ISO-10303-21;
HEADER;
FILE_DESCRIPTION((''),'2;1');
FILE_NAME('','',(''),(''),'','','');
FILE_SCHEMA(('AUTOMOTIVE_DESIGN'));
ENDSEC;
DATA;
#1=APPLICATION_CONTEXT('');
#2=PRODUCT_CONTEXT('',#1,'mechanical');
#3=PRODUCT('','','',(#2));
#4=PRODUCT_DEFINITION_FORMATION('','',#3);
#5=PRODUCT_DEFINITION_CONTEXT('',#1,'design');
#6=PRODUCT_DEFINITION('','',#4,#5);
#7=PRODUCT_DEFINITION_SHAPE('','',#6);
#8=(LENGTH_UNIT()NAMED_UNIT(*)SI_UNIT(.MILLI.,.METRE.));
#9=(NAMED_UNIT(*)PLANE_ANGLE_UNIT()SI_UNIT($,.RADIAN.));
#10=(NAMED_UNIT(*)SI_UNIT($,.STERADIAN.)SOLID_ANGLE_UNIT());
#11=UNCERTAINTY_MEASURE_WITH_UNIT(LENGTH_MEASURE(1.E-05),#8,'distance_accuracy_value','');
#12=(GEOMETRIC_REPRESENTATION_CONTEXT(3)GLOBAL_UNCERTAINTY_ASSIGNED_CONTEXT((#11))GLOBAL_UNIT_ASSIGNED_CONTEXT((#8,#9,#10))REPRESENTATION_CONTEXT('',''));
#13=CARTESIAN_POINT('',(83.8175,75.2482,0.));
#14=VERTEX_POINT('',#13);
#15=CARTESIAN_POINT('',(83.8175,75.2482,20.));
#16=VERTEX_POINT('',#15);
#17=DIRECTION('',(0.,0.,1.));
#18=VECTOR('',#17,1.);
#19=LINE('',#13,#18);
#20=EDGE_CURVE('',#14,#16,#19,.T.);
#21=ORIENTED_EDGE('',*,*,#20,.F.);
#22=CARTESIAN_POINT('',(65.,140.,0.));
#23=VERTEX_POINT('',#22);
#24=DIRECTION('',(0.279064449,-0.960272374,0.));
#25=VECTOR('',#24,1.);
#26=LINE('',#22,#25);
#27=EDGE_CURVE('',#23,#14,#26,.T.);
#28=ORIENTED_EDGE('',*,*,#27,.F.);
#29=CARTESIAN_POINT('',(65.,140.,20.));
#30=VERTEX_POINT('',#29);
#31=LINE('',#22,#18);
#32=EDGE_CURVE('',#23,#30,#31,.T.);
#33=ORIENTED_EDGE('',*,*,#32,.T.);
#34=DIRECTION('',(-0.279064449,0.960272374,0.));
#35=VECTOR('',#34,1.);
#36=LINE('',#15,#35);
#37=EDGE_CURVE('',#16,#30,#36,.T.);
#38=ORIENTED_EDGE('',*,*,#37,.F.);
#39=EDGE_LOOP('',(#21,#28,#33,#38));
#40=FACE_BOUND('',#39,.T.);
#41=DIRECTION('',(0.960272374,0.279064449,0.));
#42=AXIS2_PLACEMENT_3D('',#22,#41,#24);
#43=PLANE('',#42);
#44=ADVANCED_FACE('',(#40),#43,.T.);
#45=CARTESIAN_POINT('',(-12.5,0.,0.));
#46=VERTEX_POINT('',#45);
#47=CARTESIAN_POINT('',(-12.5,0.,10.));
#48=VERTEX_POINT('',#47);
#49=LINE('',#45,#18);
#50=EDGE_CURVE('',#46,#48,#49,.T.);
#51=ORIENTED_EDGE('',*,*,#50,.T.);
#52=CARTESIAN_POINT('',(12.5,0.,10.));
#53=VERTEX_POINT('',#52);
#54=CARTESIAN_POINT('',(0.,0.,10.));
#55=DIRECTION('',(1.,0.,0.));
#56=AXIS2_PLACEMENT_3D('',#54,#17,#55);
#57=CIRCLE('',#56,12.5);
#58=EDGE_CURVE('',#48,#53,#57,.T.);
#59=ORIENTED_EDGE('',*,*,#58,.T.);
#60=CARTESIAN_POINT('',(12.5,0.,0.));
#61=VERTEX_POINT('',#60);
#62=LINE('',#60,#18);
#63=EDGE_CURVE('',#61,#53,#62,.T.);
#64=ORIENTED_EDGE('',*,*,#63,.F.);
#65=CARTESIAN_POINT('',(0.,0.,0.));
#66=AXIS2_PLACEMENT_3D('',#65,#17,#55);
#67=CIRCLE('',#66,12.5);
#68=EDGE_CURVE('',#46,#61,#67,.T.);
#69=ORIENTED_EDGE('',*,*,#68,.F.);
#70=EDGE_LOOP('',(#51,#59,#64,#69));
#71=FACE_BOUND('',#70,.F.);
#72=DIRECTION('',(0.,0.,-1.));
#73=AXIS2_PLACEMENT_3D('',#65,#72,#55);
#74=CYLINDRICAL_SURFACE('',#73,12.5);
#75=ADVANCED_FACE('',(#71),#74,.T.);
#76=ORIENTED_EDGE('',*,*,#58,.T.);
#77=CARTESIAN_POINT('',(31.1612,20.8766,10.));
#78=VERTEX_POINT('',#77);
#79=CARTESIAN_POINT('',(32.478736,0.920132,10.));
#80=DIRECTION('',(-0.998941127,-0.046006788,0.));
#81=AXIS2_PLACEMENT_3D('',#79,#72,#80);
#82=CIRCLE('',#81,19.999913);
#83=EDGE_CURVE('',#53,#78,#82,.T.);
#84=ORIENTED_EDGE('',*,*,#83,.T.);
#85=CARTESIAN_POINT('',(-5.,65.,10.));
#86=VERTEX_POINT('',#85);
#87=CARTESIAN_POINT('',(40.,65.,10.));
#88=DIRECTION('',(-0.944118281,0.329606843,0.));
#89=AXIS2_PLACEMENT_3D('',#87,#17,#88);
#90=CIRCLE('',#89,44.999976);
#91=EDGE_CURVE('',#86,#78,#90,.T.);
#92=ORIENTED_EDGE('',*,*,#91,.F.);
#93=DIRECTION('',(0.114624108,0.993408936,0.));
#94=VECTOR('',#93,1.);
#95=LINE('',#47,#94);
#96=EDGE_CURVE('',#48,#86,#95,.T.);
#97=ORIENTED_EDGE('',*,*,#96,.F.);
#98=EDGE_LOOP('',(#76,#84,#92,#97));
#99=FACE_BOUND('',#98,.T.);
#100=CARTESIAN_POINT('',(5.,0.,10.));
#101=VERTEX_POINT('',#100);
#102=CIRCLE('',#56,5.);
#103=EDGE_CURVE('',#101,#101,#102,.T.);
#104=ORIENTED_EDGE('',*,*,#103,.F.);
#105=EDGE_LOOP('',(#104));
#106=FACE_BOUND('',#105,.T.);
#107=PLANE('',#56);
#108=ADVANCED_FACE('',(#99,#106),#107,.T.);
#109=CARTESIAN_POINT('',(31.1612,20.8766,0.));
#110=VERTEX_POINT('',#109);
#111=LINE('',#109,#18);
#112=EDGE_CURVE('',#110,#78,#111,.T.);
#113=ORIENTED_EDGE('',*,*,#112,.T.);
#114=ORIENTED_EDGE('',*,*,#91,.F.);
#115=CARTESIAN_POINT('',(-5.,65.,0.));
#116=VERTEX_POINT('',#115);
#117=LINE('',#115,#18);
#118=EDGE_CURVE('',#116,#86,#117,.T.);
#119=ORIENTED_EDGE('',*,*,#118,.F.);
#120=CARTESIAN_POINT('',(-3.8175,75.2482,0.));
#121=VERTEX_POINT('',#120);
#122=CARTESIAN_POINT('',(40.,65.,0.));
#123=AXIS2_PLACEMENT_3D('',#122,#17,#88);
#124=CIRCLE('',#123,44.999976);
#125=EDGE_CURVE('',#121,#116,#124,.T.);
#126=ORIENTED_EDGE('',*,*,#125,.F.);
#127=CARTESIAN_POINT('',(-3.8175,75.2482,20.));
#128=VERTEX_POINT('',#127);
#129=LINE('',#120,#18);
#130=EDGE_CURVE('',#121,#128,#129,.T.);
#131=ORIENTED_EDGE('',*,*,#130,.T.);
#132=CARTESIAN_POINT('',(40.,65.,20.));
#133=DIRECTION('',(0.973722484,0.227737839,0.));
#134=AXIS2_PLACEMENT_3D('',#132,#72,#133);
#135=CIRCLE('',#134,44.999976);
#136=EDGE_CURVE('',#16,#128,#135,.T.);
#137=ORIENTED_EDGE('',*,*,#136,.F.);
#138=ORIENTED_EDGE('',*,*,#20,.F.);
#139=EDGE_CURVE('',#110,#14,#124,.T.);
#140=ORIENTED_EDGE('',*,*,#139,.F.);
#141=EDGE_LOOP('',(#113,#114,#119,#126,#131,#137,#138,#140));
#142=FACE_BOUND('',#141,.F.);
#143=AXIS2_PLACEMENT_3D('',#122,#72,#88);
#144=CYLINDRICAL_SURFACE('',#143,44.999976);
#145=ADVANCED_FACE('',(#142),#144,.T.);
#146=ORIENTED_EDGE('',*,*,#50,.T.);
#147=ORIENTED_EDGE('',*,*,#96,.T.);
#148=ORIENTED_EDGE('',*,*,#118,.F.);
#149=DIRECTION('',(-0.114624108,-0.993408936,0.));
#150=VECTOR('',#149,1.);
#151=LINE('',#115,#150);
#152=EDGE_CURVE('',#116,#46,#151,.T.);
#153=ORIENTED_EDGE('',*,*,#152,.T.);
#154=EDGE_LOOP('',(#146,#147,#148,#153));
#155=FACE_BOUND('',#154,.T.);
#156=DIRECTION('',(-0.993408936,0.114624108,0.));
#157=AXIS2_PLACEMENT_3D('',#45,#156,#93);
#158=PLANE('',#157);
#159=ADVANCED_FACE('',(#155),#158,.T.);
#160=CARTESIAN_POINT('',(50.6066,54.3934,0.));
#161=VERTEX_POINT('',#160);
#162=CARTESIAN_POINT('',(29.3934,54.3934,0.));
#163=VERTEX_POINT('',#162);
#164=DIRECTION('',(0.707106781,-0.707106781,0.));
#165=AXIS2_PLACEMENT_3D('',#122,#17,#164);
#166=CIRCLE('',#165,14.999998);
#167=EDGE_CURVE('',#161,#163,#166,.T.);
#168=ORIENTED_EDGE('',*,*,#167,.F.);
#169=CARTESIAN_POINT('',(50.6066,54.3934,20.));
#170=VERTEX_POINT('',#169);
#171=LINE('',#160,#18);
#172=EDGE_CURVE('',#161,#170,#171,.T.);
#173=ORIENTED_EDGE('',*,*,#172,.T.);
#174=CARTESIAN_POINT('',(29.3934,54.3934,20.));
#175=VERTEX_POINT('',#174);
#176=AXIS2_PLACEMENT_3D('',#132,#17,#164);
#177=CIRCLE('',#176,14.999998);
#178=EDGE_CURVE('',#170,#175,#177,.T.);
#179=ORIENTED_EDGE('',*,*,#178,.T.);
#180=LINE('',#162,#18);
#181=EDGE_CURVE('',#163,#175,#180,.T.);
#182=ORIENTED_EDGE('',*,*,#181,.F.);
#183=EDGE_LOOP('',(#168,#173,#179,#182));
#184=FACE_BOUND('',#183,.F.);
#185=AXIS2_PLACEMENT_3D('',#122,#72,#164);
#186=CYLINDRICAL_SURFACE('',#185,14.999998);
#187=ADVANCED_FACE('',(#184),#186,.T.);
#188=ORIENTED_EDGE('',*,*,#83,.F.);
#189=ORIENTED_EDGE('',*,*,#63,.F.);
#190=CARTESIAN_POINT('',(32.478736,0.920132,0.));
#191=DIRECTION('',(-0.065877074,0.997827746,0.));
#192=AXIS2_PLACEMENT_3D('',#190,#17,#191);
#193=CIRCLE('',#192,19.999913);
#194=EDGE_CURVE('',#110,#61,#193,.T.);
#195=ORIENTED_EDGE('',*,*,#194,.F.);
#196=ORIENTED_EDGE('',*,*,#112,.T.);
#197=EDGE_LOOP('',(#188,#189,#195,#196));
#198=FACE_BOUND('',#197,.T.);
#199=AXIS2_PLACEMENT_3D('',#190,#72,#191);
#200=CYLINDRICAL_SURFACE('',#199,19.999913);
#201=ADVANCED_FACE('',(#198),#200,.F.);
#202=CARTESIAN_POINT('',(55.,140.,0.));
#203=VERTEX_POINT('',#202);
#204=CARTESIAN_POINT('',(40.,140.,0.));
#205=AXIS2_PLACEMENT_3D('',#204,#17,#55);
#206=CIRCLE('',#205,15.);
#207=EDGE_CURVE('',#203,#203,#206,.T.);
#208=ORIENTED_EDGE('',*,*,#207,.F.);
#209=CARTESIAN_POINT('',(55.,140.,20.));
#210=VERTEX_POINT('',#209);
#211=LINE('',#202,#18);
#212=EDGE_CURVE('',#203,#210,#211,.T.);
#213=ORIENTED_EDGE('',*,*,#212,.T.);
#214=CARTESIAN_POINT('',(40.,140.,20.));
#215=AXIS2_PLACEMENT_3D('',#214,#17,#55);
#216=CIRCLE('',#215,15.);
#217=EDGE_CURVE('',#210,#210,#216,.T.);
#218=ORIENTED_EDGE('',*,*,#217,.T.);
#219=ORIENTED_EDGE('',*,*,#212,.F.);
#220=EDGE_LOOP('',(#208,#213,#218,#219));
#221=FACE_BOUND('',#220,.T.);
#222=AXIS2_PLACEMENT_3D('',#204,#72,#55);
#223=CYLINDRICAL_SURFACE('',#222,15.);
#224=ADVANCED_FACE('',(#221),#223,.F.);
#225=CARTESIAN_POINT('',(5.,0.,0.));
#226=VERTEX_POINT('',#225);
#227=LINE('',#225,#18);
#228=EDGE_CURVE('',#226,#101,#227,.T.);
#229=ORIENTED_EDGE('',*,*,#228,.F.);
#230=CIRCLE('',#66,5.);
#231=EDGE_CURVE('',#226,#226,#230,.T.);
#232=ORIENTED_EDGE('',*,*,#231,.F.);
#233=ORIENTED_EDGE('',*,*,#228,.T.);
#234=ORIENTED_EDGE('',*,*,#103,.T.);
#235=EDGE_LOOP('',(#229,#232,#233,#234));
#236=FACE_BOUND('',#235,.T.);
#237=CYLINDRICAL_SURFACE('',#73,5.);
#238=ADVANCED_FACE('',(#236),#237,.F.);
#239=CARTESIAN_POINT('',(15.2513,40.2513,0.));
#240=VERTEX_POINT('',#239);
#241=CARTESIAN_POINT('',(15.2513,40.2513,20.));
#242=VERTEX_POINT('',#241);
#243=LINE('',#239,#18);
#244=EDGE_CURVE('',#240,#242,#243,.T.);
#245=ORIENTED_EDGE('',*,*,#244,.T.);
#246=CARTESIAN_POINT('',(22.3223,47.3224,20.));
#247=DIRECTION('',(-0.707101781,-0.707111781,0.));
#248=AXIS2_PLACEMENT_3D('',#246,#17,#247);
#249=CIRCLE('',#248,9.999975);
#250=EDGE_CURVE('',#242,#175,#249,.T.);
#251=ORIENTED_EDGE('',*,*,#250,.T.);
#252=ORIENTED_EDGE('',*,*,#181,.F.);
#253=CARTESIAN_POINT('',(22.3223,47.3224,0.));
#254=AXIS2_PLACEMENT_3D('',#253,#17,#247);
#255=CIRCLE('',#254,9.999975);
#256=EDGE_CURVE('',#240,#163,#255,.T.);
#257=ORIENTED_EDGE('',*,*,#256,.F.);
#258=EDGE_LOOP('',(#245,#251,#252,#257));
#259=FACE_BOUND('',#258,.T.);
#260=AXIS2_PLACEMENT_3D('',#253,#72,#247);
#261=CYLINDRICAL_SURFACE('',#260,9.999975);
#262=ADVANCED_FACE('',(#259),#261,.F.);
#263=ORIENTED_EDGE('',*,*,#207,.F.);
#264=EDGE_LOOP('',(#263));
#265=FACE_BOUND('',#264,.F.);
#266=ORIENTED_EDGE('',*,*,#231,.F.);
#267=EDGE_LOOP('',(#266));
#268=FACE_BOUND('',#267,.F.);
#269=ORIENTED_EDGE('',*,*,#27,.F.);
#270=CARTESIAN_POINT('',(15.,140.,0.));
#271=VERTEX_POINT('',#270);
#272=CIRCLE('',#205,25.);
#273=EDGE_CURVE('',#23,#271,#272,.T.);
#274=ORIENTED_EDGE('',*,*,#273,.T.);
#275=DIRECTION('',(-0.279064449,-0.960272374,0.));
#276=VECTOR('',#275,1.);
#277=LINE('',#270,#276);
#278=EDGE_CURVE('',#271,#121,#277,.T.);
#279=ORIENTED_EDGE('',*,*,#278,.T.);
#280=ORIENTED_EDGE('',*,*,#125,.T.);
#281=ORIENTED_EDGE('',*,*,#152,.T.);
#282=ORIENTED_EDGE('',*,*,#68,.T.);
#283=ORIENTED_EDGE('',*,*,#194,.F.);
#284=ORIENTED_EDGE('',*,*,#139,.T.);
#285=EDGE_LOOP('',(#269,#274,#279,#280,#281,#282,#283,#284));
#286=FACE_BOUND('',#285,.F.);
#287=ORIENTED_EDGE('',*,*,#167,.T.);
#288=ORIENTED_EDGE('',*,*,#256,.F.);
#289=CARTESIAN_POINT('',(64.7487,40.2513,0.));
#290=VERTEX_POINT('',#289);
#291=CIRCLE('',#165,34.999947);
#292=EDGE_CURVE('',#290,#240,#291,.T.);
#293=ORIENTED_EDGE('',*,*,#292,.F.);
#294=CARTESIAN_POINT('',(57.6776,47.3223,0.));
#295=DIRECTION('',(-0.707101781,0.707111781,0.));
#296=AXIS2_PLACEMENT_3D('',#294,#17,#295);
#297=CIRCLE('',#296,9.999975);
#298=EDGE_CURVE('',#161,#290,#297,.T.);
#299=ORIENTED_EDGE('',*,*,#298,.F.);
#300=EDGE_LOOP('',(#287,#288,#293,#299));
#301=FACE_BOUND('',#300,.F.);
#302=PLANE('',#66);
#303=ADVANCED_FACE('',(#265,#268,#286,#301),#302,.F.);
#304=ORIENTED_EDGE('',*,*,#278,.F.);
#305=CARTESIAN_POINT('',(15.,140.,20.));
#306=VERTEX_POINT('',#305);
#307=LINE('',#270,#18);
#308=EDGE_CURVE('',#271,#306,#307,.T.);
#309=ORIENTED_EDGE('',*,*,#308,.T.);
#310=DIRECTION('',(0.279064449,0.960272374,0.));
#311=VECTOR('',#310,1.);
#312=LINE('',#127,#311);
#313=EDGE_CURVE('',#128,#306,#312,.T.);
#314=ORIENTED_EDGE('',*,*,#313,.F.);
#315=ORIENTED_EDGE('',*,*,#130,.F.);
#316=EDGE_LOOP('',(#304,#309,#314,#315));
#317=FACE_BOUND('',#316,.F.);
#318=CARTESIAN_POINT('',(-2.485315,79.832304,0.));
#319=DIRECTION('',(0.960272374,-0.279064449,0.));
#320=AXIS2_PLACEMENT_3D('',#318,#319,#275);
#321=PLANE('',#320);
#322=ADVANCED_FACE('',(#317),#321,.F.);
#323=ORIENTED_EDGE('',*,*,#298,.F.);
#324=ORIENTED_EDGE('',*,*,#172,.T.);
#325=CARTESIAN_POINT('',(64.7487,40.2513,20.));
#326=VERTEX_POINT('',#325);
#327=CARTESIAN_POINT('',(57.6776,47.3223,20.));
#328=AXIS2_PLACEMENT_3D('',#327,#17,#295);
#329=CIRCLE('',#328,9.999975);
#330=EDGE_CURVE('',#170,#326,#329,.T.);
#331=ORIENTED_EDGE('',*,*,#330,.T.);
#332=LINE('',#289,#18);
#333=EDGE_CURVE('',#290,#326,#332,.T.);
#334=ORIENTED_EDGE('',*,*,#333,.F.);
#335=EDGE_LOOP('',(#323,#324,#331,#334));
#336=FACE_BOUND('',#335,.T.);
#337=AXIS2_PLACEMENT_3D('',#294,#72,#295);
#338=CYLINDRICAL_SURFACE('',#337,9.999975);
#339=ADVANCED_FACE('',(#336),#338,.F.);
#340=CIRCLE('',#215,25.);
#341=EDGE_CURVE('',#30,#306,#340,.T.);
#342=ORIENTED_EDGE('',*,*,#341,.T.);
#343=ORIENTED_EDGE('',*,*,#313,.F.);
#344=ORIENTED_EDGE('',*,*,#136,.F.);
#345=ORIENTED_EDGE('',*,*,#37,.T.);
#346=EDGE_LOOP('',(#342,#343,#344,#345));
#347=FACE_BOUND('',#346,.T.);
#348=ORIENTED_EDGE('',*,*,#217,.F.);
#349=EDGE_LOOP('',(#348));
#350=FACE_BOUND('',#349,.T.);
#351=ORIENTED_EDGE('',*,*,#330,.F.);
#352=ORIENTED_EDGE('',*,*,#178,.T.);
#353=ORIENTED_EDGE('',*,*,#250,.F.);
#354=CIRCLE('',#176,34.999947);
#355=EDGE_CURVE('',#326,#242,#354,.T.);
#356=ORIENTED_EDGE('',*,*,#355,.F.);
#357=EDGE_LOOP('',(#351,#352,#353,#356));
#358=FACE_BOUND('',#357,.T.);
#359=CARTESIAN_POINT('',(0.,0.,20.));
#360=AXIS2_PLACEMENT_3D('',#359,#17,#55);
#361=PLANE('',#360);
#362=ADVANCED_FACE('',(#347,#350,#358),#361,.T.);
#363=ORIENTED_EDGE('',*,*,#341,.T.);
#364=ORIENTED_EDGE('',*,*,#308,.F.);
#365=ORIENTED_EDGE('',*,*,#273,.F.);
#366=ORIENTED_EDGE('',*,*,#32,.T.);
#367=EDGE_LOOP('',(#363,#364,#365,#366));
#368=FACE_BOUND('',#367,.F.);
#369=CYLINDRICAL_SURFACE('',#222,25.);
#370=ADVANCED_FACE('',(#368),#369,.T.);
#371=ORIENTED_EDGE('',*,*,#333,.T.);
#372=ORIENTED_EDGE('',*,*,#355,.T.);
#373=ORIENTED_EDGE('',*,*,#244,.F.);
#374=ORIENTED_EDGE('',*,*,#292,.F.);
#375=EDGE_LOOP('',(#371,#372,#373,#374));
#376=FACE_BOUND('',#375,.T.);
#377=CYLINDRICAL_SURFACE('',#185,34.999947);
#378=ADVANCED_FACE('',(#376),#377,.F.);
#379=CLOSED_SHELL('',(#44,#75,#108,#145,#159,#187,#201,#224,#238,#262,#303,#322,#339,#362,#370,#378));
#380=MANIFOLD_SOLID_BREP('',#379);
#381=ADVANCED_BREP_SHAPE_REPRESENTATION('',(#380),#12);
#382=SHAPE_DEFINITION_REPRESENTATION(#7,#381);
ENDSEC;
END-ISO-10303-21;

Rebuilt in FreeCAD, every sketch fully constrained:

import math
import FreeCAD as App
import Part
import Sketcher

doc = App.newDocument("Part")
body = doc.addObject("PartDesign::Body", "Body")

sketch1 = body.newObject("Sketcher::SketchObject", "Sketch")
sketch1.AttachmentSupport = (doc.getObject("XY_Plane"), [""])
sketch1.MapMode = "FlatFace"
sketch1.addGeometry(Part.ArcOfCircle(Part.Circle(App.Vector(0, 0, 0), App.Vector(0, 0, 1), 12), math.radians(180), math.radians(360)), False)
sketch1.addGeometry(Part.ArcOfCircle(Part.Circle(App.Vector(32, 1, 0), App.Vector(0, 0, 1), 20), math.radians(94), math.radians(183)), False)
sketch1.addGeometry(Part.ArcOfCircle(Part.Circle(App.Vector(40, 65, 0), App.Vector(0, 0, 1), 45), math.radians(180), math.radians(259)), False)
sketch1.addGeometry(Part.LineSegment(App.Vector(-5, 65, 0), App.Vector(-12, 0, 0)), False)
sketch1.addGeometry(Part.Circle(App.Vector(0, 0, 0), App.Vector(0, 0, 1), 5), False)
sketch1.addConstraint(Sketcher.Constraint("Coincident", 0, 2, 1, 2))
sketch1.addConstraint(Sketcher.Constraint("Coincident", 1, 1, 2, 2))
sketch1.addConstraint(Sketcher.Constraint("Coincident", 2, 1, 3, 1))
sketch1.addConstraint(Sketcher.Constraint("Coincident", 3, 2, 0, 1))
sketch1.addConstraint(Sketcher.Constraint("Coincident", 0, 3, -1, 1))
sketch1.addConstraint(Sketcher.Constraint("Coincident", 4, 3, -1, 1))
sketch1.addConstraint(Sketcher.Constraint("PointOnObject", 0, 2, -1))
sketch1.addConstraint(Sketcher.Constraint("PointOnObject", 3, 2, -1))
sketch1.addConstraint(Sketcher.Constraint("Diameter", 4, 10.0))
sketch1.addConstraint(Sketcher.Constraint("Radius", 1, 20.0))
sketch1.addConstraint(Sketcher.Constraint("Radius", 2, 45.0))
sketch1.addConstraint(Sketcher.Constraint("Radius", 0, 12.5))
sketch1.addConstraint(Sketcher.Constraint("DistanceY", -1, 1, 2, 3, 65.0))
sketch1.addConstraint(Sketcher.Constraint("DistanceY", -1, 1, 2, 1, 65.0))
sketch1.addConstraint(Sketcher.Constraint("DistanceY", 1, 3, 2, 3, 64.08))
sketch1.addConstraint(Sketcher.Constraint("DistanceX", -1, 1, 2, 3, 40.0))
pad1 = body.newObject("PartDesign::Pad", "Pad")
pad1.Profile = sketch1
pad1.Length = 10

sketch2 = body.newObject("Sketcher::SketchObject", "Sketch001")
sketch2.AttachmentSupport = (doc.getObject("XY_Plane"), [""])
sketch2.MapMode = "FlatFace"
sketch2.addGeometry(Part.ArcOfCircle(Part.Circle(App.Vector(40, 65, 0), App.Vector(0, 0, 1), 45), math.radians(167), math.radians(373)), False)
sketch2.addGeometry(Part.LineSegment(App.Vector(84, 75, 0), App.Vector(65, 140, 0)), False)
sketch2.addGeometry(Part.ArcOfCircle(Part.Circle(App.Vector(40, 140, 0), App.Vector(0, 0, 1), 25), math.radians(0), math.radians(180)), False)
sketch2.addGeometry(Part.LineSegment(App.Vector(15, 140, 0), App.Vector(-4, 75, 0)), False)
sketch2.addGeometry(Part.ArcOfCircle(Part.Circle(App.Vector(40, 65, 0), App.Vector(0, 0, 1), 35), math.radians(-45), math.radians(225)), False)
sketch2.addGeometry(Part.ArcOfCircle(Part.Circle(App.Vector(58, 47, 0), App.Vector(0, 0, 1), 10), math.radians(135), math.radians(315)), False)
sketch2.addGeometry(Part.ArcOfCircle(Part.Circle(App.Vector(40, 65, 0), App.Vector(0, 0, 1), 15), math.radians(-45), math.radians(225)), False)
sketch2.addGeometry(Part.ArcOfCircle(Part.Circle(App.Vector(22, 47, 0), App.Vector(0, 0, 1), 10), math.radians(-135), math.radians(45)), False)
sketch2.addGeometry(Part.Circle(App.Vector(40, 140, 0), App.Vector(0, 0, 1), 15), False)
sketch2.addConstraint(Sketcher.Constraint("Coincident", 0, 2, 1, 1))
sketch2.addConstraint(Sketcher.Constraint("Coincident", 1, 2, 2, 1))
sketch2.addConstraint(Sketcher.Constraint("Coincident", 2, 2, 3, 1))
sketch2.addConstraint(Sketcher.Constraint("Coincident", 3, 2, 0, 1))
sketch2.addConstraint(Sketcher.Constraint("Tangent", 4, 1, 5, 2))
sketch2.addConstraint(Sketcher.Constraint("Tangent", 5, 1, 6, 1))
sketch2.addConstraint(Sketcher.Constraint("Tangent", 6, 2, 7, 2))
sketch2.addConstraint(Sketcher.Constraint("Tangent", 7, 1, 4, 2))
sketch2.addConstraint(Sketcher.Constraint("Coincident", 4, 3, 0, 3))
sketch2.addConstraint(Sketcher.Constraint("Coincident", 6, 3, 0, 3))
sketch2.addConstraint(Sketcher.Constraint("Coincident", 8, 3, 2, 3))
sketch2.addConstraint(Sketcher.Constraint("Equal", 6, 8))
sketch2.addConstraint(Sketcher.Constraint("Horizontal", 5, 3, 7, 3))
sketch2.addConstraint(Sketcher.Constraint("Horizontal", 8, 3, 1, 2))
sketch2.addConstraint(Sketcher.Constraint("Horizontal", 1, 2, 2, 2))
sketch2.addConstraint(Sketcher.Constraint("Horizontal", 0, 2, 3, 2))
sketch2.addConstraint(Sketcher.Constraint("Vertical", 0, 3, 2, 3))
sketch2.addConstraint(Sketcher.Constraint("Diameter", 8, 30.0))
sketch2.addConstraint(Sketcher.Constraint("Radius", 0, 45.0))
sketch2.addConstraint(Sketcher.Constraint("Radius", 2, 25.0))
sketch2.addConstraint(Sketcher.Constraint("Radius", 5, 10.0))
sketch2.addConstraint(Sketcher.Constraint("DistanceY", -1, 1, 0, 3, 65.0))
sketch2.addConstraint(Sketcher.Constraint("DistanceX", -1, 1, 1, 2, 65.0))
sketch2.addConstraint(Sketcher.Constraint("DistanceY", 0, 3, 2, 3, 75.0))
sketch2.addConstraint(Sketcher.Constraint("DistanceY", 5, 3, 0, 2, 27.926))
sketch2.addConstraint(Sketcher.Constraint("DistanceX", 5, 3, 4, 1, 7.071))
pad2 = body.newObject("PartDesign::Pad", "Pad001")
pad2.Profile = sketch2
pad2.Length = 20

doc.recompute()
